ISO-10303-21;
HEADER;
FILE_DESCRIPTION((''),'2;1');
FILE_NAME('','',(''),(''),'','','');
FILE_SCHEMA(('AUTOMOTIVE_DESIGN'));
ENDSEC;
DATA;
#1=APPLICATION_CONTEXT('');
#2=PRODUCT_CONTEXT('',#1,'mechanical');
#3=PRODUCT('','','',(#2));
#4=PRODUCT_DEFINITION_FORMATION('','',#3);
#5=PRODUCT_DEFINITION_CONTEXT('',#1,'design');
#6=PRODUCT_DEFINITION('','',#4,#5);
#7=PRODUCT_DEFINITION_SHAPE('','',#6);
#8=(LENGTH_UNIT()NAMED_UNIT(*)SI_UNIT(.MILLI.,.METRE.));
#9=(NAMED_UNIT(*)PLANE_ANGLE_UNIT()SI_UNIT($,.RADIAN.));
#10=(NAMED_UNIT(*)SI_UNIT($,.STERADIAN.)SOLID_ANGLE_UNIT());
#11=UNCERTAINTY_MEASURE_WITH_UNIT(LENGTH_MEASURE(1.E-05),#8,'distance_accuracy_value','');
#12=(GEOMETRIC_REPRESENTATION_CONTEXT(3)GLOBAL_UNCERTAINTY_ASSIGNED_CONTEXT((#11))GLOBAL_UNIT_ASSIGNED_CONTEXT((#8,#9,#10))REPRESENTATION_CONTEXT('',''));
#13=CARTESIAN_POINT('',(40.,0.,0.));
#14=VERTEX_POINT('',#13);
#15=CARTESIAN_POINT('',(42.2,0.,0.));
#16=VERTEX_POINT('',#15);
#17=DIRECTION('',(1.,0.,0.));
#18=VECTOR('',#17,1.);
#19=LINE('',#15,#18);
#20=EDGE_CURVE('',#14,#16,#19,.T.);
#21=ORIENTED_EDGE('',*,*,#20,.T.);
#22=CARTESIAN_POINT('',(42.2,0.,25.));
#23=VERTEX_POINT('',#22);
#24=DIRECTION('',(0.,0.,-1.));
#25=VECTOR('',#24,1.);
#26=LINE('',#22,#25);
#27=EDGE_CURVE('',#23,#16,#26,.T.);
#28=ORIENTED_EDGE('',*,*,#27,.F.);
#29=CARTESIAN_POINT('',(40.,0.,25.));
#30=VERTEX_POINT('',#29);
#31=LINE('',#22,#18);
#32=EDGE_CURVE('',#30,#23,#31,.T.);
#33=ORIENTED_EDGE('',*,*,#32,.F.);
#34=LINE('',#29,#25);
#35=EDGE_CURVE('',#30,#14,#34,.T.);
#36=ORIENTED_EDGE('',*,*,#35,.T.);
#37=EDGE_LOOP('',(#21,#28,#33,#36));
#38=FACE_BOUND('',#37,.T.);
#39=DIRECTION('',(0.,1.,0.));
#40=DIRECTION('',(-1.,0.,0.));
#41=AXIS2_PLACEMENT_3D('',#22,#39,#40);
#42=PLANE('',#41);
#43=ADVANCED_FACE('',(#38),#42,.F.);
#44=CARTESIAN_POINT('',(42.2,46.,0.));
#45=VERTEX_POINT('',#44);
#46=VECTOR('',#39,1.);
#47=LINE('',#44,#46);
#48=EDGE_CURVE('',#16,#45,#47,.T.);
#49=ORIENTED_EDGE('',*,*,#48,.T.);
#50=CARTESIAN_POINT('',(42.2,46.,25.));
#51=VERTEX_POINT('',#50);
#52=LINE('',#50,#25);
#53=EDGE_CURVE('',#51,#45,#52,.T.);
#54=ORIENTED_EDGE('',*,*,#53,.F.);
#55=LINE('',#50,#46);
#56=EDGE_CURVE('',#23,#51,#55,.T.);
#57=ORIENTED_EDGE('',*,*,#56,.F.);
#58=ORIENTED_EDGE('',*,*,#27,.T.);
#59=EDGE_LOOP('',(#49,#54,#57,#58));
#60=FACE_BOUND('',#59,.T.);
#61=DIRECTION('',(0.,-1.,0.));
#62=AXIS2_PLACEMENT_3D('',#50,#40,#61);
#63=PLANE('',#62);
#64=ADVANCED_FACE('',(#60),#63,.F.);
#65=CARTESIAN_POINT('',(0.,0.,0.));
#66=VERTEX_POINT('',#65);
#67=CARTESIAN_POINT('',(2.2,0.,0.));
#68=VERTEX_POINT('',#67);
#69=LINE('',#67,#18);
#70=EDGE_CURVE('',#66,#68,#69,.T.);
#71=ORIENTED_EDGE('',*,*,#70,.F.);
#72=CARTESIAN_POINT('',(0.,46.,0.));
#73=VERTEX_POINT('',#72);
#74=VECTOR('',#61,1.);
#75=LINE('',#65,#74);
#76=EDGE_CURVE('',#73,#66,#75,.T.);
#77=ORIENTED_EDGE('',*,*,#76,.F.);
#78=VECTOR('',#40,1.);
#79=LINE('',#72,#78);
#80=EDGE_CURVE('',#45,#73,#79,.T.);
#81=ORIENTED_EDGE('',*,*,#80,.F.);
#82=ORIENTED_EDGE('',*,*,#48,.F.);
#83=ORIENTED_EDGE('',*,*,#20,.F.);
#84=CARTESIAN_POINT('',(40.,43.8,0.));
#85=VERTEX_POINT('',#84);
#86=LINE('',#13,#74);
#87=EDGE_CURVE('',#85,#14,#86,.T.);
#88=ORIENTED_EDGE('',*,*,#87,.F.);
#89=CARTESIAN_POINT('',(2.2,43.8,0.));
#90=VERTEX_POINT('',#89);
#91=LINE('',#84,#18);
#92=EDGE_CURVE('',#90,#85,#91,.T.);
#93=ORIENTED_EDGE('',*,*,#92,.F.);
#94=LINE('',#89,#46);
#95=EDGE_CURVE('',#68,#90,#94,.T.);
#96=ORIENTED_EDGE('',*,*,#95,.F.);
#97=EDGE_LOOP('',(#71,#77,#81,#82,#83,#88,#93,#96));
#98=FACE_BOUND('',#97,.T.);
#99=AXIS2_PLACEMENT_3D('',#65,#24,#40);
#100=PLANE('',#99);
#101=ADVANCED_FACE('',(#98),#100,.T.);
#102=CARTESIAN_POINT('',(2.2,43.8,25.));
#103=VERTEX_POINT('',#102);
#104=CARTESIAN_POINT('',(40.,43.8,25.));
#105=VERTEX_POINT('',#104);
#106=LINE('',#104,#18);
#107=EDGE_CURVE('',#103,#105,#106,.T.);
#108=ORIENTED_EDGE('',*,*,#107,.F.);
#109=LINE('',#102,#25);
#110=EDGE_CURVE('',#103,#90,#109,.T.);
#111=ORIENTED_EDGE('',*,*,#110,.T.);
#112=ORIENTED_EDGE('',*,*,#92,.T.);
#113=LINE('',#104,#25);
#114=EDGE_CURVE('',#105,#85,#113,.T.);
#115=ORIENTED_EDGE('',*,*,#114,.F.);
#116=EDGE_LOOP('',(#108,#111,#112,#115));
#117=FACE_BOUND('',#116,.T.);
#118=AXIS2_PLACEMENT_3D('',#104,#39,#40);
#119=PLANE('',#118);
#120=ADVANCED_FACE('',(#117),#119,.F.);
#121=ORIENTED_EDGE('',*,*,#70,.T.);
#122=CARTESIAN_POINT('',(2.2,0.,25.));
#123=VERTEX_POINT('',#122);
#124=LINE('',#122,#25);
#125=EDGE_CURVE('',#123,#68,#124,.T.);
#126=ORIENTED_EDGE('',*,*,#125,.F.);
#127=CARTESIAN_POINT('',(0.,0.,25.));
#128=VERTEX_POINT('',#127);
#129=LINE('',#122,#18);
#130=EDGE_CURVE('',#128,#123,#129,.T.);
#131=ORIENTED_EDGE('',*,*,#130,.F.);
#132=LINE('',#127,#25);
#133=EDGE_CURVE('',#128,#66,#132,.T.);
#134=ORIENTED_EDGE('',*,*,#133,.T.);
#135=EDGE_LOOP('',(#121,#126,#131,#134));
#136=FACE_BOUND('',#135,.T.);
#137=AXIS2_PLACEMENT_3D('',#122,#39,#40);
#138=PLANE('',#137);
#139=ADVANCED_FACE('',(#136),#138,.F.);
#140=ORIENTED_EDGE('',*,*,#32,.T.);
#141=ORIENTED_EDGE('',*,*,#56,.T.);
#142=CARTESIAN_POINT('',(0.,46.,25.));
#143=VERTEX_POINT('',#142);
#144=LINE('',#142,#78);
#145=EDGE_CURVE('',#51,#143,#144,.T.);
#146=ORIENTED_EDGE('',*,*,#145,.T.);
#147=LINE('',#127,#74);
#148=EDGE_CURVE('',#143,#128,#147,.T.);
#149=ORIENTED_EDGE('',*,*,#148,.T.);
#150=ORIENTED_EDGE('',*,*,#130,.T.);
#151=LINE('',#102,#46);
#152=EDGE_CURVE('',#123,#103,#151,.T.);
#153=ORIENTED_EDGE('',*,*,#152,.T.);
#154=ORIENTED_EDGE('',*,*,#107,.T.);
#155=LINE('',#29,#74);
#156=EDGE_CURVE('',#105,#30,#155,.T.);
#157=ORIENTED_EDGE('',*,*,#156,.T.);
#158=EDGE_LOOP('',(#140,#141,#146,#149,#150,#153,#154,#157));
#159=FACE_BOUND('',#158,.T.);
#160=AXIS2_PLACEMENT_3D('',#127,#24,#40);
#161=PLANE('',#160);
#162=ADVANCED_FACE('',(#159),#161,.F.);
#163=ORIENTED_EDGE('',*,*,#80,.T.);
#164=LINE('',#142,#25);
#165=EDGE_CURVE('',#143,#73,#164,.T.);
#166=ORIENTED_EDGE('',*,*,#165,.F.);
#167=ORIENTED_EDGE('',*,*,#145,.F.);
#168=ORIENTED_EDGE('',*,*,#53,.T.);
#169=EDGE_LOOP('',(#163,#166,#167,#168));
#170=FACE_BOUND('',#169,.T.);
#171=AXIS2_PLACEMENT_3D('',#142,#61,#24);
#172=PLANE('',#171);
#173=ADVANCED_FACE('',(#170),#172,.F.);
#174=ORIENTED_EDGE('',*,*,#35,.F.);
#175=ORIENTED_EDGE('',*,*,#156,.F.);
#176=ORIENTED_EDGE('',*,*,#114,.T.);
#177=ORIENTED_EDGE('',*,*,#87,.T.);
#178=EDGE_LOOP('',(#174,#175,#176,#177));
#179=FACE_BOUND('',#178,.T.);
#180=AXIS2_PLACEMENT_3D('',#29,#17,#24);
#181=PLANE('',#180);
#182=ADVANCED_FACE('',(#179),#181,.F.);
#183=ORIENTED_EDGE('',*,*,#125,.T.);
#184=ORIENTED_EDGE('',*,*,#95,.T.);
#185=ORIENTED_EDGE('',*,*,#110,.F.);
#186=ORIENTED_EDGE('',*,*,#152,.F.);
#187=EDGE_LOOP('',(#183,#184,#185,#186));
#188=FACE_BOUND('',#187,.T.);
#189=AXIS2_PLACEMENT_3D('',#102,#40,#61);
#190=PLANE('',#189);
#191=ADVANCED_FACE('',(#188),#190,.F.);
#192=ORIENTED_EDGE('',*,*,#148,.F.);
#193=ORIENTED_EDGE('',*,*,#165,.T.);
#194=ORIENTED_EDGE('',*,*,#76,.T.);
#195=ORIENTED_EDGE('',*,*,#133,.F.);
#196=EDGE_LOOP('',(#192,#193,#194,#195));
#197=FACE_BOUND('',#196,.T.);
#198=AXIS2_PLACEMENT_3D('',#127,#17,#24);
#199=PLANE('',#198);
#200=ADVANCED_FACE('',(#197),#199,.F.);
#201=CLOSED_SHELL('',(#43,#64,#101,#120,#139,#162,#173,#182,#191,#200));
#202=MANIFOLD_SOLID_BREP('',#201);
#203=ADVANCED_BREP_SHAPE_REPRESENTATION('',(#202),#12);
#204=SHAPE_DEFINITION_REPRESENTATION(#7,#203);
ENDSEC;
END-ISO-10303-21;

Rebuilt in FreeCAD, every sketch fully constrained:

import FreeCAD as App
import Part
import Sketcher

V = App.Vector

doc = App.newDocument("Part")
params = doc.addObject("Spreadsheet::Sheet", "Params")
for row, (alias, value) in enumerate([
    ("sketch1_height", "46 mm"),
    ("sketch1_width", "2.2 mm"),
    ("sketch1_width2", "37.8 mm"),
    ("sketch1_height2", "43.8 mm"),
    ("pad1_length", "25 mm"),
], start=1):
    params.set(f"A{row}", alias)
    params.set(f"B{row}", "=" + value)
    params.setAlias(f"B{row}", alias)

body = doc.addObject("PartDesign::Body", "Body")

# Sketch on XY plane
sketch1 = doc.addObject("Sketcher::SketchObject", "Sketch")
body.addObject(sketch1)
sketch1.AttachmentSupport = (doc.XY_Plane, [""])
sketch1.MapMode = "FlatFace"
sketch1.addGeometry([
    Part.LineSegment(V(0, 46, 0), V(0, 0, 0)),  # 0
    Part.LineSegment(V(0, 0, 0), V(2.2, 0, 0)),  # 1
    Part.LineSegment(V(2.2, 0, 0), V(2.2, 43.8, 0)),  # 2
    Part.LineSegment(V(2.2, 43.8, 0), V(40, 43.8, 0)),  # 3
    Part.LineSegment(V(40, 43.8, 0), V(40, 0, 0)),  # 4
    Part.LineSegment(V(40, 0, 0), V(42.2, 0, 0)),  # 5
    Part.LineSegment(V(42.2, 0, 0), V(42.2, 46, 0)),  # 6
    Part.LineSegment(V(42.2, 46, 0), V(0, 46, 0)),  # 7
], False)
sketch1.addConstraint([
    Sketcher.Constraint("Coincident", 0, 2, 1, 1),
    Sketcher.Constraint("Coincident", 1, 2, 2, 1),
    Sketcher.Constraint("Coincident", 2, 2, 3, 1),
    Sketcher.Constraint("Coincident", 3, 2, 4, 1),
    Sketcher.Constraint("Coincident", 4, 2, 5, 1),
    Sketcher.Constraint("Coincident", 5, 2, 6, 1),
    Sketcher.Constraint("Coincident", 6, 2, 7, 1),
    Sketcher.Constraint("Coincident", 7, 2, 0, 1),
    Sketcher.Constraint("Vertical", 0),
    Sketcher.Constraint("Horizontal", 1),
    Sketcher.Constraint("Vertical", 2),
    Sketcher.Constraint("Horizontal", 3),
    Sketcher.Constraint("Vertical", 4),
    Sketcher.Constraint("Horizontal", 5),
    Sketcher.Constraint("Vertical", 6),
    Sketcher.Constraint("Horizontal", 7),
    Sketcher.Constraint("Coincident", 0, 2, -1, 1),
    Sketcher.Constraint("PointOnObject", 4, 2, -1),
    Sketcher.Constraint("Equal", 1, 5),
    Sketcher.Constraint("DistanceY", 0, 2, 0, 1, 46.0),
    Sketcher.Constraint("DistanceX", 1, 1, 1, 2, 2.2),
    Sketcher.Constraint("DistanceX", 3, 1, 3, 2, 37.8),
    Sketcher.Constraint("DistanceY", 2, 1, 2, 2, 43.8),
])
sketch1.setExpression("Constraints[19]", "Params.sketch1_height")
sketch1.setExpression("Constraints[20]", "Params.sketch1_width")
sketch1.setExpression("Constraints[21]", "Params.sketch1_width2")
sketch1.setExpression("Constraints[22]", "Params.sketch1_height2")
pad1 = doc.addObject("PartDesign::Pad", "Pad")
body.addObject(pad1)
pad1.Profile = sketch1
pad1.setExpression("Length", "Params.pad1_length")

doc.recompute()
